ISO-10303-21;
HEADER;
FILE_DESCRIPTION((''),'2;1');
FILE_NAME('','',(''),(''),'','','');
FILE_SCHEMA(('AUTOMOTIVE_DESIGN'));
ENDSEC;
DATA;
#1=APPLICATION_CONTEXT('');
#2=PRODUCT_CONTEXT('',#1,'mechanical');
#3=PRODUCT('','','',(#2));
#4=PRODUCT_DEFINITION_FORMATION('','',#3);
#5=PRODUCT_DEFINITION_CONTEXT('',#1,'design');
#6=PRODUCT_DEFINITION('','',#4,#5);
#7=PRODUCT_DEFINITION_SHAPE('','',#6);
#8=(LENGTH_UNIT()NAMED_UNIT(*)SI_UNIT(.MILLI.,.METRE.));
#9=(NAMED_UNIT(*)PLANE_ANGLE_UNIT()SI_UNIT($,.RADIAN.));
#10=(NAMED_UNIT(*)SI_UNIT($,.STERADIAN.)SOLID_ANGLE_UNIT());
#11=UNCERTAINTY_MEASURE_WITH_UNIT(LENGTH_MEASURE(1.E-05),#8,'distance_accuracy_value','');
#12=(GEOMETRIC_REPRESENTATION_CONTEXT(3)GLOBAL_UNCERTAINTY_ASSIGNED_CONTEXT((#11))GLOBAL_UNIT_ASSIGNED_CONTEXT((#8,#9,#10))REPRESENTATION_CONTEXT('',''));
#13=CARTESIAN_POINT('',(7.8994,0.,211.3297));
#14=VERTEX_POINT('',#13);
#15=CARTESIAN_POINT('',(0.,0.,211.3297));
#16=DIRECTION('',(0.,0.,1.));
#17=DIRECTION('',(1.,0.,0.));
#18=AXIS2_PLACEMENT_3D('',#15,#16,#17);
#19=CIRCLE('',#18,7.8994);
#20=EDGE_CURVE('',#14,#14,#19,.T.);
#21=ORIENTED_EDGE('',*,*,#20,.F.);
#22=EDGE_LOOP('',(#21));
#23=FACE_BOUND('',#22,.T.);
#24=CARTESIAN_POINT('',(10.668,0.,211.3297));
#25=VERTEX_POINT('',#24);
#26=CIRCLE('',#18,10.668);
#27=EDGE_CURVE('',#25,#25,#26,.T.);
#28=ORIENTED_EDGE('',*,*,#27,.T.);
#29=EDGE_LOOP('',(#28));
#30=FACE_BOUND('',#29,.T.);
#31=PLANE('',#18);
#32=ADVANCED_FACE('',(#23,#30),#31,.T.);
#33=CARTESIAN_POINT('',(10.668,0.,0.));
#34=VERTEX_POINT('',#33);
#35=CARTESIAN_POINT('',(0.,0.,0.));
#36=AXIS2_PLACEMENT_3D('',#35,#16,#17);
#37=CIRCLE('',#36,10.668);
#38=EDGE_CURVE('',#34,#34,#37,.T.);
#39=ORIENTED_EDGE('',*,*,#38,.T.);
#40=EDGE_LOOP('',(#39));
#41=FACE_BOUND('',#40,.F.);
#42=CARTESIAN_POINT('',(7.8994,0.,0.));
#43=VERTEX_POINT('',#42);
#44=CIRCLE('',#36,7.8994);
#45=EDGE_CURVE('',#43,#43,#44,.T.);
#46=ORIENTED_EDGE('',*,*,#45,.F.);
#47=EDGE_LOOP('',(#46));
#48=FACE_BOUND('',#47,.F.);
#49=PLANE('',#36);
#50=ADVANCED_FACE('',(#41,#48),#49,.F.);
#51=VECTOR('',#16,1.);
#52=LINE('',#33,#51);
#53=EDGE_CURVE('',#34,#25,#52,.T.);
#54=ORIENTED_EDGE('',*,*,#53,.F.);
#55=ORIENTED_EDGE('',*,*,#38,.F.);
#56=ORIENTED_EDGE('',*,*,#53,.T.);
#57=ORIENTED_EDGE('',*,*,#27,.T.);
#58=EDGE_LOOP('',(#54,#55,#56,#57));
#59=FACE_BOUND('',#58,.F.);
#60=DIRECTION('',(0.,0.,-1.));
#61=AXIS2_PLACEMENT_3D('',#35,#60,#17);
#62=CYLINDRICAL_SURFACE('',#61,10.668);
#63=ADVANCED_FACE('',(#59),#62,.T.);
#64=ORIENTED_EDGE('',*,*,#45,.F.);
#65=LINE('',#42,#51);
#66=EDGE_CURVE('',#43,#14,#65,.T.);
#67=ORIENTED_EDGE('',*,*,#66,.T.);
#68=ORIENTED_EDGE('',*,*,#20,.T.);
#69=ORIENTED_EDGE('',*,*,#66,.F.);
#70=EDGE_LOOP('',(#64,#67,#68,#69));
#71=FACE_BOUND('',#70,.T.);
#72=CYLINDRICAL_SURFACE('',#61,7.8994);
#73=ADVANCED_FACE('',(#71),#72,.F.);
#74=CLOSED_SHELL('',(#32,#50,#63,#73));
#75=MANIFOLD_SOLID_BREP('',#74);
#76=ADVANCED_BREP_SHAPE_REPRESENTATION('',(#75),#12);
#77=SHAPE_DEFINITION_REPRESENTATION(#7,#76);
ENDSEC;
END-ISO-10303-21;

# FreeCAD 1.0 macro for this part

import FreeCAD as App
import Part
import Sketcher
from FreeCAD import Vector
Q = App.Units.Quantity

doc = App.newDocument("Part")
body = doc.addObject("PartDesign::Body", "Body")

# Sketch on XY plane
sketch1 = body.newObject("Sketcher::SketchObject", "Sketch")
sketch1.AttachmentSupport = (doc.getObject("XY_Plane"), [""])
sketch1.MapMode = "FlatFace"
sketch1.addGeometry([
    Part.Circle(Vector(0, 0, 0), Vector(0, 0, 1), 10.668),
    Part.Circle(Vector(0, 0, 0), Vector(0, 0, 1), 7.8994),
], False)
sketch1.addConstraint([
    Sketcher.Constraint("Coincident", 0, 3, -1, 1),
    Sketcher.Constraint("Coincident", 1, 3, -1, 1),
    Sketcher.Constraint("Diameter", 0, Q("0.84 in")),
    Sketcher.Constraint("Diameter", 1, Q("0.622 in")),
])
pad1 = body.newObject("PartDesign::Pad", "Pad")
pad1.Profile = sketch1
pad1.Length = 211.3297

doc.recompute()
